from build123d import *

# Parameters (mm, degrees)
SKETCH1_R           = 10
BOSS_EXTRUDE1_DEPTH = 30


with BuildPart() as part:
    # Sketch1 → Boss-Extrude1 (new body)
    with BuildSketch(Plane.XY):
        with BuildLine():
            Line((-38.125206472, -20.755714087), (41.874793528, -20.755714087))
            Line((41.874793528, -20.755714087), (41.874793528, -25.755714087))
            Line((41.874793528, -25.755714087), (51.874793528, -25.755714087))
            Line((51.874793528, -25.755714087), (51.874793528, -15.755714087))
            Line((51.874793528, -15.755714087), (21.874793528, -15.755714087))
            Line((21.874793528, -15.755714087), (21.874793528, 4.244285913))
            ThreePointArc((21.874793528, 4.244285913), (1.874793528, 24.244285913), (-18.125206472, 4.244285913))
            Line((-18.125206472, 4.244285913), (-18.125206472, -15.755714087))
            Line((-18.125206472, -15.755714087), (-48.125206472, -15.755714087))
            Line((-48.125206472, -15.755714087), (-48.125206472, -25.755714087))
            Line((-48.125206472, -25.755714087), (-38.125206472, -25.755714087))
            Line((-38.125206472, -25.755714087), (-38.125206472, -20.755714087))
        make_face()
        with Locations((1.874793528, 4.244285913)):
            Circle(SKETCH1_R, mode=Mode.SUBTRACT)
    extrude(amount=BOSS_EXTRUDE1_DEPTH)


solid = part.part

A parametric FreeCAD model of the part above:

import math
import FreeCAD as App
import Part
import Sketcher

doc = App.newDocument("Part")
body = doc.addObject("PartDesign::Body", "Body")

# Sketch on XY plane
sketch1 = body.newObject("Sketcher::SketchObject", "Sketch")
sketch1.AttachmentSupport = (doc.getObject("XY_Plane"), [""])
sketch1.MapMode = "FlatFace"
sketch1.addGeometry(Part.LineSegment(App.Vector(-38, -21, 0), App.Vector(42, -21, 0)), False)
sketch1.addGeometry(Part.LineSegment(App.Vector(42, -21, 0), App.Vector(42, -26, 0)), False)
sketch1.addGeometry(Part.LineSegment(App.Vector(42, -26, 0), App.Vector(52, -26, 0)), False)
sketch1.addGeometry(Part.LineSegment(App.Vector(52, -26, 0), App.Vector(52, -16, 0)), False)
sketch1.addGeometry(Part.LineSegment(App.Vector(52, -16, 0), App.Vector(22, -16, 0)), False)
sketch1.addGeometry(Part.LineSegment(App.Vector(22, -16, 0), App.Vector(22, 4, 0)), False)
sketch1.addGeometry(Part.ArcOfCircle(Part.Circle(App.Vector(2, 4, 0), App.Vector(0, 0, 1), 20), math.radians(0), math.radians(180)), False)
sketch1.addGeometry(Part.LineSegment(App.Vector(-18, 4, 0), App.Vector(-18, -16, 0)), False)
sketch1.addGeometry(Part.LineSegment(App.Vector(-18, -16, 0), App.Vector(-48, -16, 0)), False)
sketch1.addGeometry(Part.LineSegment(App.Vector(-48, -16, 0), App.Vector(-48, -26, 0)), False)
sketch1.addGeometry(Part.LineSegment(App.Vector(-48, -26, 0), App.Vector(-38, -26, 0)), False)
sketch1.addGeometry(Part.LineSegment(App.Vector(-38, -26, 0), App.Vector(-38, -21, 0)), False)
sketch1.addGeometry(Part.Circle(App.Vector(2, 4, 0), App.Vector(0, 0, 1), 10), False)
sketch1.addConstraint(Sketcher.Constraint("Coincident", 0, 2, 1, 1))
sketch1.addConstraint(Sketcher.Constraint("Coincident", 1, 2, 2, 1))
sketch1.addConstraint(Sketcher.Constraint("Coincident", 2, 2, 3, 1))
sketch1.addConstraint(Sketcher.Constraint("Coincident", 3, 2, 4, 1))
sketch1.addConstraint(Sketcher.Constraint("Coincident", 4, 2, 5, 1))
sketch1.addConstraint(Sketcher.Constraint("Tangent", 5, 2, 6, 1))
sketch1.addConstraint(Sketcher.Constraint("Tangent", 6, 2, 7, 1))
sketch1.addConstraint(Sketcher.Constraint("Coincident", 7, 2, 8, 1))
sketch1.addConstraint(Sketcher.Constraint("Coincident", 8, 2, 9, 1))
sketch1.addConstraint(Sketcher.Constraint("Coincident", 9, 2, 10, 1))
sketch1.addConstraint(Sketcher.Constraint("Coincident", 10, 2, 11, 1))
sketch1.addConstraint(Sketcher.Constraint("Coincident", 11, 2, 0, 1))
sketch1.addConstraint(Sketcher.Constraint("Horizontal", 0))
sketch1.addConstraint(Sketcher.Constraint("Vertical", 1))
sketch1.addConstraint(Sketcher.Constraint("Horizontal", 2))
sketch1.addConstraint(Sketcher.Constraint("Vertical", 3))
sketch1.addConstraint(Sketcher.Constraint("Horizontal", 4))
sketch1.addConstraint(Sketcher.Constraint("Vertical", 5))
sketch1.addConstraint(Sketcher.Constraint("Vertical", 7))
sketch1.addConstraint(Sketcher.Constraint("Horizontal", 8))
sketch1.addConstraint(Sketcher.Constraint("Vertical", 9))
sketch1.addConstraint(Sketcher.Constraint("Horizontal", 10))
sketch1.addConstraint(Sketcher.Constraint("Vertical", 11))
sketch1.addConstraint(Sketcher.Constraint("Coincident", 12, 3, 6, 3))
sketch1.addConstraint(Sketcher.Constraint("Horizontal", 4, 2, 7, 2))
sketch1.addConstraint(Sketcher.Constraint("Horizontal", 2, 2, 9, 2))
sketch1.addConstraint(Sketcher.Constraint("Equal", 4, 8))
sketch1.addConstraint(Sketcher.Constraint("Equal", 2, 10))
sketch1.addConstraint(Sketcher.Constraint("Equal", 10, 3))
sketch1.addConstraint(Sketcher.Constraint("Diameter", 12, 20.0))
sketch1.addConstraint(Sketcher.Constraint("Radius", 6, 20.0))
sketch1.addConstraint(Sketcher.Constraint("DistanceX", 0, 1, 0, 2, 80.0))
sketch1.addConstraint(Sketcher.Constraint("DistanceX", 2, 1, 2, 2, 10.0))
sketch1.addConstraint(Sketcher.Constraint("DistanceY", 1, 2, 1, 1, 5.0))
sketch1.addConstraint(Sketcher.Constraint("DistanceY", 5, 1, 5, 2, 20.0))
sketch1.addConstraint(Sketcher.Constraint("DistanceX", -1, 1, 6, 3, 1.874794))
sketch1.addConstraint(Sketcher.Constraint("DistanceY", -1, 1, 6, 3, 4.244286))
pad1 = body.newObject("PartDesign::Pad", "Pad")
pad1.Profile = sketch1
pad1.Length = 30

doc.recompute()
